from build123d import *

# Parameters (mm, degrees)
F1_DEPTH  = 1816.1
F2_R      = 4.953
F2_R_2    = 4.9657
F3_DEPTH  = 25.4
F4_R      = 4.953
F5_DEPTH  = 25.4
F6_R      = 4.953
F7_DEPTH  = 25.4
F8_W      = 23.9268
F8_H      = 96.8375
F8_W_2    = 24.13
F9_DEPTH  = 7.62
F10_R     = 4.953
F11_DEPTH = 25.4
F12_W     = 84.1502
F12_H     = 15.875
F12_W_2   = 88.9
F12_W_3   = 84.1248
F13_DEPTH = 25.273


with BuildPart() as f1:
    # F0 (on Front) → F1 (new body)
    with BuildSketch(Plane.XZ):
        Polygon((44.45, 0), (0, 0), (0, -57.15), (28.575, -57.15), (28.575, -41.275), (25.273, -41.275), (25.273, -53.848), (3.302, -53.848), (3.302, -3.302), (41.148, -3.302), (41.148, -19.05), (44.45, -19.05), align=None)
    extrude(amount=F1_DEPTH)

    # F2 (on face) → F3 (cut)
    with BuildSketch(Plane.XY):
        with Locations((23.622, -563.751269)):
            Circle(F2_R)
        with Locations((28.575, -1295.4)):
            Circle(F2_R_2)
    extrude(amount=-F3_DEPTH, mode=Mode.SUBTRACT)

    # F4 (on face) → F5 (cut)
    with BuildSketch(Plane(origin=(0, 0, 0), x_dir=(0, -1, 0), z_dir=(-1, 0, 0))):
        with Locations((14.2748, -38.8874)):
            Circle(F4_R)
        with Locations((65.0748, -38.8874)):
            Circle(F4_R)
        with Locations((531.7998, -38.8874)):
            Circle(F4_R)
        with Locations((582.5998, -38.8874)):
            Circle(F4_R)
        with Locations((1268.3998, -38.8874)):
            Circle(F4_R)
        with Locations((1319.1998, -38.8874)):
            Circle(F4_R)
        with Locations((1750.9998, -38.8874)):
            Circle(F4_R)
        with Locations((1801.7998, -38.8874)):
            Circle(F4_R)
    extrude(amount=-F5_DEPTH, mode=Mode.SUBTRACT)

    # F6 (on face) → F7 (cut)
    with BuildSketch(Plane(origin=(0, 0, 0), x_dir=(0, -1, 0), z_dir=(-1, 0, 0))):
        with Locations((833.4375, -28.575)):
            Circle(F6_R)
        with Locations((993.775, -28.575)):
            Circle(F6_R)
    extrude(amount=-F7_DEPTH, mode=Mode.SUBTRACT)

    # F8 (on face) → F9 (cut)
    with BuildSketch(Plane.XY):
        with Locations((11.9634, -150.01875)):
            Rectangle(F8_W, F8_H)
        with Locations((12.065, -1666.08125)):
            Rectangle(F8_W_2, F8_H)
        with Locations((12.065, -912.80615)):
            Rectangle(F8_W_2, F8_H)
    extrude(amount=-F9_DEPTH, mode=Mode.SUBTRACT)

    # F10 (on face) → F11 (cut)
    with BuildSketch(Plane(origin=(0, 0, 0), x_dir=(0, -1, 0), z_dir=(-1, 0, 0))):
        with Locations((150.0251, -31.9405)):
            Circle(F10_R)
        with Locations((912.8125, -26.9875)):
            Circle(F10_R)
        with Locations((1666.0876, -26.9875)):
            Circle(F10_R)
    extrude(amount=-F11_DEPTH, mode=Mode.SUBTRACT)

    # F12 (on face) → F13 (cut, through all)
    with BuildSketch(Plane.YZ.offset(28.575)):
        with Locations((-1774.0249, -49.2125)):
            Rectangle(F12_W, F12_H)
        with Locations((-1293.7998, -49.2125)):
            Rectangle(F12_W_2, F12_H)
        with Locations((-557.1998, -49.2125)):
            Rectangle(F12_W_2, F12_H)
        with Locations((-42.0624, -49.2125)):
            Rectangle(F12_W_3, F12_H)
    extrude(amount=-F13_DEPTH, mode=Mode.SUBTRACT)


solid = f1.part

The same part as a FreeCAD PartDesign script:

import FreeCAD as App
import Part
import Sketcher
from FreeCAD import Vector
Q = App.Units.Quantity


def add_polygon(sketch, points):
    """Adds a closed chain of lines whose ends are joined by coincident constraints."""
    first, n = sketch.GeometryCount, len(points)
    for a, b in zip(points, points[1:] + points[:1]):
        sketch.addGeometry(Part.LineSegment(App.Vector(*a, 0), App.Vector(*b, 0)), False)
    for i in range(n):
        sketch.addConstraint(Sketcher.Constraint("Coincident", first + i, 2, first + (i + 1) % n, 1))

doc = App.newDocument("Part")
params = doc.addObject("Spreadsheet::Sheet", "Params")
for row, (alias, value) in enumerate([
    ("sketch1_width", "1.75 in"),
    ("sketch1_width2", "0.13 in"),
    ("sketch1_width3", "1.49 in"),
    ("sketch1_height", "2.25 in"),
    ("sketch1_height2", "1.99 in"),
    ("pad1_length", "71.5 in"),
    ("sketch2_diameter", "0.39 in"),
    ("sketch2_diameter2", "0.391 in"),
    ("pocket1_length", "1 in"),
    ("sketch3_diameter", "0.39 in"),
    ("pocket2_length", "1 in"),
    ("sketch4_diameter", "0.39 in"),
    ("pocket3_length", "1 in"),
    ("sketch5_width", "0.95 in"),
    ("sketch5_width2", "0.942 in"),
    ("sketch5_height", "3.8125 in"),
    ("pocket4_length", "0.3 in"),
    ("sketch6_diameter", "0.39 in"),
    ("pocket5_length", "1 in"),
    ("sketch7_width", "3.5 in"),
    ("sketch7_width2", "3.313 in"),
    ("sketch7_width3", "3.312 in"),
    ("sketch7_height", "0.625 in"),
    ("pocket6_length", "0.995 in"),
], start=1):
    params.set(f"A{row}", alias)
    params.set(f"B{row}", "=" + value)
    params.setAlias(f"B{row}", alias)

body = doc.addObject("PartDesign::Body", "Body")

# Sketch on XZ plane
sketch1 = body.newObject("Sketcher::SketchObject", "Sketch")
sketch1.AttachmentSupport = (doc.getObject("XZ_Plane"), [""])
sketch1.MapMode = "FlatFace"
add_polygon(sketch1, [(44.45, 0), (0, 0), (0, -57.15), (28.575, -57.15), (28.575, -41.275), (25.273, -41.275), (25.273, -53.848), (3.302, -53.848), (3.302, -3.302), (41.148, -3.302), (41.148, -19.05), (44.45, -19.05)])  # lines 0-11
sketch1.addConstraint(Sketcher.Constraint("Horizontal", 0))
sketch1.addConstraint(Sketcher.Constraint("Vertical", 1))
sketch1.addConstraint(Sketcher.Constraint("Horizontal", 2))
sketch1.addConstraint(Sketcher.Constraint("Vertical", 3))
sketch1.addConstraint(Sketcher.Constraint("Horizontal", 4))
sketch1.addConstraint(Sketcher.Constraint("Vertical", 5))
sketch1.addConstraint(Sketcher.Constraint("Horizontal", 6))
sketch1.addConstraint(Sketcher.Constraint("Vertical", 7))
sketch1.addConstraint(Sketcher.Constraint("Horizontal", 8))
sketch1.addConstraint(Sketcher.Constraint("Vertical", 9))
sketch1.addConstraint(Sketcher.Constraint("Horizontal", 10))
sketch1.addConstraint(Sketcher.Constraint("Vertical", 11))
sketch1.addConstraint(Sketcher.Constraint("Coincident", 0, 2, -1, 1))
sketch1.addConstraint(Sketcher.Constraint("Equal", 4, 10))
sketch1.addConstraint(Sketcher.Constraint("DistanceX", 0, 2, 0, 1, Q("1.75 in")))
sketch1.addConstraint(Sketcher.Constraint("DistanceX", 4, 2, 4, 1, Q("0.13 in")))
sketch1.addConstraint(Sketcher.Constraint("DistanceX", 8, 1, 8, 2, Q("1.49 in")))
sketch1.addConstraint(Sketcher.Constraint("DistanceY", 1, 2, 1, 1, Q("2.25 in")))
sketch1.addConstraint(Sketcher.Constraint("DistanceY", 7, 1, 7, 2, Q("1.99 in")))
sketch1.addConstraint(Sketcher.Constraint("DistanceY", 9, 2, 9, 1, Q("0.62 in")))
sketch1.addConstraint(Sketcher.Constraint("DistanceY", 11, 1, 11, 2, Q("0.75 in")))
sketch1.addConstraint(Sketcher.Constraint("DistanceX", 2, 1, 2, 2, Q("1.125 in")))
sketch1.addConstraint(Sketcher.Constraint("DistanceY", 3, 1, 3, 2, Q("0.625 in")))
sketch1.setExpression("Constraints[26]", "Params.sketch1_width")
sketch1.setExpression("Constraints[27]", "Params.sketch1_width2")
sketch1.setExpression("Constraints[28]", "Params.sketch1_width3")
sketch1.setExpression("Constraints[29]", "Params.sketch1_height")
sketch1.setExpression("Constraints[30]", "Params.sketch1_height2")
pad1 = body.newObject("PartDesign::Pad", "Pad")
pad1.Profile = sketch1
pad1.setExpression("Length", "Params.pad1_length")

# Sketch on XY plane
sketch2 = body.newObject("Sketcher::SketchObject", "Sketch001")
sketch2.AttachmentSupport = (doc.getObject("XY_Plane"), [""])
sketch2.MapMode = "FlatFace"
sketch2.addGeometry(Part.Circle(Vector(23.622, -563.751269, 0), Vector(0, 0, 1), 4.953), False)
sketch2.addGeometry(Part.Circle(Vector(28.575, -1295.4, 0), Vector(0, 0, 1), 4.9657), False)
sketch2.addConstraint(Sketcher.Constraint("Diameter", 0, Q("0.39 in")))
sketch2.addConstraint(Sketcher.Constraint("Diameter", 1, Q("0.391 in")))
sketch2.addConstraint(Sketcher.Constraint("DistanceY", 1, 3, -1, 1, Q("51 in")))
sketch2.addConstraint(Sketcher.Constraint("DistanceX", -1, 1, 0, 3, Q("0.93 in")))
sketch2.addConstraint(Sketcher.Constraint("DistanceX", -1, 1, 1, 3, Q("1.125 in")))
sketch2.addConstraint(Sketcher.Constraint("DistanceY", 0, 3, -1, 1, Q("563.751269 mm")))
sketch2.setExpression("Constraints[0]", "Params.sketch2_diameter")
sketch2.setExpression("Constraints[1]", "Params.sketch2_diameter2")
pocket1 = body.newObject("PartDesign::Pocket", "Pocket")
pocket1.Profile = sketch2
pocket1.setExpression("Length", "Params.pocket1_length")

# Sketch on YZ plane
sketch3 = body.newObject("Sketcher::SketchObject", "Sketch002")
sketch3.AttachmentSupport = (doc.getObject("YZ_Plane"), [""])
sketch3.MapMode = "FlatFace"
sketch3.addGeometry(Part.Circle(Vector(-14.2748, -38.8874, 0), Vector(0, 0, 1), 4.953), False)
sketch3.addGeometry(Part.Circle(Vector(-65.0748, -38.8874, 0), Vector(0, 0, 1), 4.953), False)
sketch3.addGeometry(Part.Circle(Vector(-531.7998, -38.8874, 0), Vector(0, 0, 1), 4.953), False)
sketch3.addGeometry(Part.Circle(Vector(-582.5998, -38.8874, 0), Vector(0, 0, 1), 4.953), False)
sketch3.addGeometry(Part.Circle(Vector(-1268.3998, -38.8874, 0), Vector(0, 0, 1), 4.953), False)
sketch3.addGeometry(Part.Circle(Vector(-1319.1998, -38.8874, 0), Vector(0, 0, 1), 4.953), False)
sketch3.addGeometry(Part.Circle(Vector(-1750.9998, -38.8874, 0), Vector(0, 0, 1), 4.953), False)
sketch3.addGeometry(Part.Circle(Vector(-1801.7998, -38.8874, 0), Vector(0, 0, 1), 4.953), False)
sketch3.addConstraint(Sketcher.Constraint("Equal", 0, 1))
sketch3.addConstraint(Sketcher.Constraint("Equal", 1, 2))
sketch3.addConstraint(Sketcher.Constraint("Equal", 2, 3))
sketch3.addConstraint(Sketcher.Constraint("Equal", 3, 4))
sketch3.addConstraint(Sketcher.Constraint("Equal", 4, 5))
sketch3.addConstraint(Sketcher.Constraint("Equal", 5, 6))
sketch3.addConstraint(Sketcher.Constraint("Equal", 6, 7))
sketch3.addConstraint(Sketcher.Constraint("Horizontal", 0, 3, 1, 3))
sketch3.addConstraint(Sketcher.Constraint("Horizontal", 1, 3, 2, 3))
sketch3.addConstraint(Sketcher.Constraint("Horizontal", 2, 3, 3, 3))
sketch3.addConstraint(Sketcher.Constraint("Horizontal", 3, 3, 4, 3))
sketch3.addConstraint(Sketcher.Constraint("Horizontal", 4, 3, 5, 3))
sketch3.addConstraint(Sketcher.Constraint("Horizontal", 5, 3, 6, 3))
sketch3.addConstraint(Sketcher.Constraint("Horizontal", 6, 3, 7, 3))
sketch3.addConstraint(Sketcher.Constraint("Diameter", 0, Q("0.39 in")))
sketch3.addConstraint(Sketcher.Constraint("DistanceX", 1, 3, 0, 3, Q("2 in")))
sketch3.addConstraint(Sketcher.Constraint("DistanceX", 3, 3, 2, 3, Q("2 in")))
sketch3.addConstraint(Sketcher.Constraint("DistanceX", 4, 3, 3, 3, Q("27 in")))
sketch3.addConstraint(Sketcher.Constraint("DistanceX", 5, 3, 4, 3, Q("2 in")))
sketch3.addConstraint(Sketcher.Constraint("DistanceX", 6, 3, 5, 3, Q("17 in")))
sketch3.addConstraint(Sketcher.Constraint("DistanceX", 7, 3, 6, 3, Q("2 in")))
sketch3.addConstraint(Sketcher.Constraint("DistanceX", 0, 3, -1, 1, Q("0.562 in")))
sketch3.addConstraint(Sketcher.Constraint("DistanceY", 0, 3, -1, 1, Q("1.531 in")))
sketch3.addConstraint(Sketcher.Constraint("DistanceX", 2, 3, -1, 1, Q("20.937 in")))
sketch3.setExpression("Constraints[14]", "Params.sketch3_diameter")
pocket2 = body.newObject("PartDesign::Pocket", "Pocket001")
pocket2.Profile = sketch3
pocket2.setExpression("Length", "Params.pocket2_length")
pocket2.Reversed = True

# Sketch on YZ plane
sketch4 = body.newObject("Sketcher::SketchObject", "Sketch003")
sketch4.AttachmentSupport = (doc.getObject("YZ_Plane"), [""])
sketch4.MapMode = "FlatFace"
sketch4.addGeometry(Part.Circle(Vector(-833.4375, -28.575, 0), Vector(0, 0, 1), 4.953), False)
sketch4.addGeometry(Part.Circle(Vector(-993.775, -28.575, 0), Vector(0, 0, 1), 4.953), False)
sketch4.addConstraint(Sketcher.Constraint("Equal", 0, 1))
sketch4.addConstraint(Sketcher.Constraint("Horizontal", 0, 3, 1, 3))
sketch4.addConstraint(Sketcher.Constraint("Diameter", 0, Q("0.39 in")))
sketch4.addConstraint(Sketcher.Constraint("DistanceX", 0, 3, -1, 1, Q("32.8125 in")))
sketch4.addConstraint(Sketcher.Constraint("DistanceY", 0, 3, -1, 1, Q("1.125 in")))
sketch4.addConstraint(Sketcher.Constraint("DistanceX", 1, 3, -1, 1, Q("39.125 in")))
sketch4.setExpression("Constraints[2]", "Params.sketch4_diameter")
pocket3 = body.newObject("PartDesign::Pocket", "Pocket002")
pocket3.Profile = sketch4
pocket3.setExpression("Length", "Params.pocket3_length")
pocket3.Reversed = True

# Sketch on XY plane
sketch5 = body.newObject("Sketcher::SketchObject", "Sketch004")
sketch5.AttachmentSupport = (doc.getObject("XY_Plane"), [""])
sketch5.MapMode = "FlatFace"
add_polygon(sketch5, [(0, -101.6), (0, -198.4375), (23.9268, -198.4375), (23.9268, -101.6)])  # lines 0-3
add_polygon(sketch5, [(0, -1617.6625), (0, -1714.5), (24.13, -1714.5), (24.13, -1617.6625)])  # lines 4-7
add_polygon(sketch5, [(0, -864.3874), (0, -961.2249), (24.13, -961.2249), (24.13, -864.3874)])  # lines 8-11
sketch5.addConstraint(Sketcher.Constraint("Vertical", 0))
sketch5.addConstraint(Sketcher.Constraint("Horizontal", 1))
sketch5.addConstraint(Sketcher.Constraint("Vertical", 2))
sketch5.addConstraint(Sketcher.Constraint("Horizontal", 3))
sketch5.addConstraint(Sketcher.Constraint("Vertical", 4))
sketch5.addConstraint(Sketcher.Constraint("Horizontal", 5))
sketch5.addConstraint(Sketcher.Constraint("Vertical", 6))
sketch5.addConstraint(Sketcher.Constraint("Horizontal", 7))
sketch5.addConstraint(Sketcher.Constraint("Vertical", 8))
sketch5.addConstraint(Sketcher.Constraint("Horizontal", 9))
sketch5.addConstraint(Sketcher.Constraint("Vertical", 10))
sketch5.addConstraint(Sketcher.Constraint("Horizontal", 11))
sketch5.addConstraint(Sketcher.Constraint("PointOnObject", 0, 2, -2))
sketch5.addConstraint(Sketcher.Constraint("PointOnObject", 4, 2, -2))
sketch5.addConstraint(Sketcher.Constraint("PointOnObject", 8, 2, -2))
sketch5.addConstraint(Sketcher.Constraint("Vertical", 6, 2, 9, 2))
sketch5.addConstraint(Sketcher.Constraint("Equal", 2, 4))
sketch5.addConstraint(Sketcher.Constraint("Equal", 6, 8))
sketch5.addConstraint(Sketcher.Constraint("DistanceY", 2, 2, -1, 1, Q("4 in")))
sketch5.addConstraint(Sketcher.Constraint("DistanceX", 5, 1, 5, 2, Q("0.95 in")))
sketch5.addConstraint(Sketcher.Constraint("DistanceY", 4, 2, -1, 1, Q("67.5 in")))
sketch5.addConstraint(Sketcher.Constraint("DistanceX", 1, 1, 1, 2, Q("0.942 in")))
sketch5.addConstraint(Sketcher.Constraint("DistanceY", 0, 2, 0, 1, Q("3.8125 in")))
sketch5.addConstraint(Sketcher.Constraint("DistanceY", 10, 2, -1, 1, Q("34.031 in")))
sketch5.setExpression("Constraints[31]", "Params.sketch5_width")
sketch5.setExpression("Constraints[33]", "Params.sketch5_width2")
sketch5.setExpression("Constraints[34]", "Params.sketch5_height")
pocket4 = body.newObject("PartDesign::Pocket", "Pocket003")
pocket4.Profile = sketch5
pocket4.setExpression("Length", "Params.pocket4_length")

# Sketch on YZ plane
sketch6 = body.newObject("Sketcher::SketchObject", "Sketch005")
sketch6.AttachmentSupport = (doc.getObject("YZ_Plane"), [""])
sketch6.MapMode = "FlatFace"
sketch6.addGeometry(Part.Circle(Vector(-150.0251, -31.9405, 0), Vector(0, 0, 1), 4.953), False)
sketch6.addGeometry(Part.Circle(Vector(-912.8125, -26.9875, 0), Vector(0, 0, 1), 4.953), False)
sketch6.addGeometry(Part.Circle(Vector(-1666.0876, -26.9875, 0), Vector(0, 0, 1), 4.953), False)
sketch6.addConstraint(Sketcher.Constraint("Equal", 0, 1))
sketch6.addConstraint(Sketcher.Constraint("Equal", 1, 2))
sketch6.addConstraint(Sketcher.Constraint("Horizontal", 1, 3, 2, 3))
sketch6.addConstraint(Sketcher.Constraint("Diameter", 0, Q("0.39 in")))
sketch6.addConstraint(Sketcher.Constraint("DistanceX", 1, 3, -1, 1, Q("35.9375 in")))
sketch6.addConstraint(Sketcher.Constraint("DistanceY", 1, 3, -1, 1, Q("1.0625 in")))
sketch6.addConstraint(Sketcher.Constraint("DistanceX", 2, 3, -1, 1, Q("65.594 in")))
sketch6.addConstraint(Sketcher.Constraint("DistanceX", 1, 3, 0, 3, Q("30.031 in")))
sketch6.addConstraint(Sketcher.Constraint("DistanceY", 0, 3, 1, 3, Q("0.195 in")))
sketch6.setExpression("Constraints[3]", "Params.sketch6_diameter")
pocket5 = body.newObject("PartDesign::Pocket", "Pocket004")
pocket5.Profile = sketch6
pocket5.setExpression("Length", "Params.pocket5_length")
pocket5.Reversed = True

# Sketch on YZ plane
sketch7 = body.newObject("Sketcher::SketchObject", "Sketch006")
sketch7.AttachmentSupport = (doc.getObject("YZ_Plane"), [""])
sketch7.MapMode = "FlatFace"
sketch7.AttachmentOffset = App.Placement(Vector(0, 0, 1.125 * 25.4), App.Rotation())
add_polygon(sketch7, [(-1816.1, -41.275), (-1816.1, -57.15), (-1731.9498, -57.15), (-1731.9498, -41.275)])  # lines 0-3
add_polygon(sketch7, [(-1338.2498, -41.275), (-1338.2498, -57.15), (-1249.3498, -57.15), (-1249.3498, -41.275)])  # lines 4-7
add_polygon(sketch7, [(-601.6498, -41.275), (-601.6498, -57.15), (-512.7498, -57.15), (-512.7498, -41.275)])  # lines 8-11
add_polygon(sketch7, [(-84.1248, -41.275), (-84.1248, -57.15), (0, -57.15), (0, -41.275)])  # lines 12-15
sketch7.addConstraint(Sketcher.Constraint("Vertical", 0))
sketch7.addConstraint(Sketcher.Constraint("Horizontal", 1))
sketch7.addConstraint(Sketcher.Constraint("Vertical", 2))
sketch7.addConstraint(Sketcher.Constraint("Horizontal", 3))
sketch7.addConstraint(Sketcher.Constraint("Vertical", 4))
sketch7.addConstraint(Sketcher.Constraint("Horizontal", 5))
sketch7.addConstraint(Sketcher.Constraint("Vertical", 6))
sketch7.addConstraint(Sketcher.Constraint("Horizontal", 7))
sketch7.addConstraint(Sketcher.Constraint("Vertical", 8))
sketch7.addConstraint(Sketcher.Constraint("Horizontal", 9))
sketch7.addConstraint(Sketcher.Constraint("Vertical", 10))
sketch7.addConstraint(Sketcher.Constraint("Horizontal", 11))
sketch7.addConstraint(Sketcher.Constraint("Vertical", 12))
sketch7.addConstraint(Sketcher.Constraint("Horizontal", 13))
sketch7.addConstraint(Sketcher.Constraint("Vertical", 14))
sketch7.addConstraint(Sketcher.Constraint("Horizontal", 15))
sketch7.addConstraint(Sketcher.Constraint("PointOnObject", 13, 2, -2))
sketch7.addConstraint(Sketcher.Constraint("Horizontal", 1, 2, 4, 2))
sketch7.addConstraint(Sketcher.Constraint("Horizontal", 3, 2, 6, 2))
sketch7.addConstraint(Sketcher.Constraint("Horizontal", 5, 2, 8, 2))
sketch7.addConstraint(Sketcher.Constraint("Horizontal", 7, 2, 10, 2))
sketch7.addConstraint(Sketcher.Constraint("Horizontal", 9, 2, 12, 2))
sketch7.addConstraint(Sketcher.Constraint("Horizontal", 11, 2, 14, 2))
sketch7.addConstraint(Sketcher.Constraint("Equal", 7, 9))
sketch7.addConstraint(Sketcher.Constraint("DistanceX", 5, 1, 5, 2, Q("3.5 in")))
sketch7.addConstraint(Sketcher.Constraint("DistanceX", 1, 2, 5, 2, Q("19 in")))
sketch7.addConstraint(Sketcher.Constraint("DistanceX", 4, 2, 8, 2, Q("29 in")))
sketch7.addConstraint(Sketcher.Constraint("DistanceX", 0, 2, -1, 1, Q("71.5 in")))
sketch7.addConstraint(Sketcher.Constraint("DistanceX", 1, 1, 1, 2, Q("3.313 in")))
sketch7.addConstraint(Sketcher.Constraint("DistanceX", 13, 1, 13, 2, Q("3.312 in")))
sketch7.addConstraint(Sketcher.Constraint("DistanceY", 0, 2, 0, 1, Q("0.625 in")))
sketch7.addConstraint(Sketcher.Constraint("DistanceY", 0, 2, -1, 1, Q("2.25 in")))
sketch7.setExpression("Constraints[40]", "Params.sketch7_width")
sketch7.setExpression("Constraints[44]", "Params.sketch7_width2")
sketch7.setExpression("Constraints[45]", "Params.sketch7_width3")
sketch7.setExpression("Constraints[46]", "Params.sketch7_height")
pocket6 = body.newObject("PartDesign::Pocket", "Pocket005")
pocket6.Profile = sketch7
pocket6.setExpression("Length", "Params.pocket6_length")

doc.recompute()
